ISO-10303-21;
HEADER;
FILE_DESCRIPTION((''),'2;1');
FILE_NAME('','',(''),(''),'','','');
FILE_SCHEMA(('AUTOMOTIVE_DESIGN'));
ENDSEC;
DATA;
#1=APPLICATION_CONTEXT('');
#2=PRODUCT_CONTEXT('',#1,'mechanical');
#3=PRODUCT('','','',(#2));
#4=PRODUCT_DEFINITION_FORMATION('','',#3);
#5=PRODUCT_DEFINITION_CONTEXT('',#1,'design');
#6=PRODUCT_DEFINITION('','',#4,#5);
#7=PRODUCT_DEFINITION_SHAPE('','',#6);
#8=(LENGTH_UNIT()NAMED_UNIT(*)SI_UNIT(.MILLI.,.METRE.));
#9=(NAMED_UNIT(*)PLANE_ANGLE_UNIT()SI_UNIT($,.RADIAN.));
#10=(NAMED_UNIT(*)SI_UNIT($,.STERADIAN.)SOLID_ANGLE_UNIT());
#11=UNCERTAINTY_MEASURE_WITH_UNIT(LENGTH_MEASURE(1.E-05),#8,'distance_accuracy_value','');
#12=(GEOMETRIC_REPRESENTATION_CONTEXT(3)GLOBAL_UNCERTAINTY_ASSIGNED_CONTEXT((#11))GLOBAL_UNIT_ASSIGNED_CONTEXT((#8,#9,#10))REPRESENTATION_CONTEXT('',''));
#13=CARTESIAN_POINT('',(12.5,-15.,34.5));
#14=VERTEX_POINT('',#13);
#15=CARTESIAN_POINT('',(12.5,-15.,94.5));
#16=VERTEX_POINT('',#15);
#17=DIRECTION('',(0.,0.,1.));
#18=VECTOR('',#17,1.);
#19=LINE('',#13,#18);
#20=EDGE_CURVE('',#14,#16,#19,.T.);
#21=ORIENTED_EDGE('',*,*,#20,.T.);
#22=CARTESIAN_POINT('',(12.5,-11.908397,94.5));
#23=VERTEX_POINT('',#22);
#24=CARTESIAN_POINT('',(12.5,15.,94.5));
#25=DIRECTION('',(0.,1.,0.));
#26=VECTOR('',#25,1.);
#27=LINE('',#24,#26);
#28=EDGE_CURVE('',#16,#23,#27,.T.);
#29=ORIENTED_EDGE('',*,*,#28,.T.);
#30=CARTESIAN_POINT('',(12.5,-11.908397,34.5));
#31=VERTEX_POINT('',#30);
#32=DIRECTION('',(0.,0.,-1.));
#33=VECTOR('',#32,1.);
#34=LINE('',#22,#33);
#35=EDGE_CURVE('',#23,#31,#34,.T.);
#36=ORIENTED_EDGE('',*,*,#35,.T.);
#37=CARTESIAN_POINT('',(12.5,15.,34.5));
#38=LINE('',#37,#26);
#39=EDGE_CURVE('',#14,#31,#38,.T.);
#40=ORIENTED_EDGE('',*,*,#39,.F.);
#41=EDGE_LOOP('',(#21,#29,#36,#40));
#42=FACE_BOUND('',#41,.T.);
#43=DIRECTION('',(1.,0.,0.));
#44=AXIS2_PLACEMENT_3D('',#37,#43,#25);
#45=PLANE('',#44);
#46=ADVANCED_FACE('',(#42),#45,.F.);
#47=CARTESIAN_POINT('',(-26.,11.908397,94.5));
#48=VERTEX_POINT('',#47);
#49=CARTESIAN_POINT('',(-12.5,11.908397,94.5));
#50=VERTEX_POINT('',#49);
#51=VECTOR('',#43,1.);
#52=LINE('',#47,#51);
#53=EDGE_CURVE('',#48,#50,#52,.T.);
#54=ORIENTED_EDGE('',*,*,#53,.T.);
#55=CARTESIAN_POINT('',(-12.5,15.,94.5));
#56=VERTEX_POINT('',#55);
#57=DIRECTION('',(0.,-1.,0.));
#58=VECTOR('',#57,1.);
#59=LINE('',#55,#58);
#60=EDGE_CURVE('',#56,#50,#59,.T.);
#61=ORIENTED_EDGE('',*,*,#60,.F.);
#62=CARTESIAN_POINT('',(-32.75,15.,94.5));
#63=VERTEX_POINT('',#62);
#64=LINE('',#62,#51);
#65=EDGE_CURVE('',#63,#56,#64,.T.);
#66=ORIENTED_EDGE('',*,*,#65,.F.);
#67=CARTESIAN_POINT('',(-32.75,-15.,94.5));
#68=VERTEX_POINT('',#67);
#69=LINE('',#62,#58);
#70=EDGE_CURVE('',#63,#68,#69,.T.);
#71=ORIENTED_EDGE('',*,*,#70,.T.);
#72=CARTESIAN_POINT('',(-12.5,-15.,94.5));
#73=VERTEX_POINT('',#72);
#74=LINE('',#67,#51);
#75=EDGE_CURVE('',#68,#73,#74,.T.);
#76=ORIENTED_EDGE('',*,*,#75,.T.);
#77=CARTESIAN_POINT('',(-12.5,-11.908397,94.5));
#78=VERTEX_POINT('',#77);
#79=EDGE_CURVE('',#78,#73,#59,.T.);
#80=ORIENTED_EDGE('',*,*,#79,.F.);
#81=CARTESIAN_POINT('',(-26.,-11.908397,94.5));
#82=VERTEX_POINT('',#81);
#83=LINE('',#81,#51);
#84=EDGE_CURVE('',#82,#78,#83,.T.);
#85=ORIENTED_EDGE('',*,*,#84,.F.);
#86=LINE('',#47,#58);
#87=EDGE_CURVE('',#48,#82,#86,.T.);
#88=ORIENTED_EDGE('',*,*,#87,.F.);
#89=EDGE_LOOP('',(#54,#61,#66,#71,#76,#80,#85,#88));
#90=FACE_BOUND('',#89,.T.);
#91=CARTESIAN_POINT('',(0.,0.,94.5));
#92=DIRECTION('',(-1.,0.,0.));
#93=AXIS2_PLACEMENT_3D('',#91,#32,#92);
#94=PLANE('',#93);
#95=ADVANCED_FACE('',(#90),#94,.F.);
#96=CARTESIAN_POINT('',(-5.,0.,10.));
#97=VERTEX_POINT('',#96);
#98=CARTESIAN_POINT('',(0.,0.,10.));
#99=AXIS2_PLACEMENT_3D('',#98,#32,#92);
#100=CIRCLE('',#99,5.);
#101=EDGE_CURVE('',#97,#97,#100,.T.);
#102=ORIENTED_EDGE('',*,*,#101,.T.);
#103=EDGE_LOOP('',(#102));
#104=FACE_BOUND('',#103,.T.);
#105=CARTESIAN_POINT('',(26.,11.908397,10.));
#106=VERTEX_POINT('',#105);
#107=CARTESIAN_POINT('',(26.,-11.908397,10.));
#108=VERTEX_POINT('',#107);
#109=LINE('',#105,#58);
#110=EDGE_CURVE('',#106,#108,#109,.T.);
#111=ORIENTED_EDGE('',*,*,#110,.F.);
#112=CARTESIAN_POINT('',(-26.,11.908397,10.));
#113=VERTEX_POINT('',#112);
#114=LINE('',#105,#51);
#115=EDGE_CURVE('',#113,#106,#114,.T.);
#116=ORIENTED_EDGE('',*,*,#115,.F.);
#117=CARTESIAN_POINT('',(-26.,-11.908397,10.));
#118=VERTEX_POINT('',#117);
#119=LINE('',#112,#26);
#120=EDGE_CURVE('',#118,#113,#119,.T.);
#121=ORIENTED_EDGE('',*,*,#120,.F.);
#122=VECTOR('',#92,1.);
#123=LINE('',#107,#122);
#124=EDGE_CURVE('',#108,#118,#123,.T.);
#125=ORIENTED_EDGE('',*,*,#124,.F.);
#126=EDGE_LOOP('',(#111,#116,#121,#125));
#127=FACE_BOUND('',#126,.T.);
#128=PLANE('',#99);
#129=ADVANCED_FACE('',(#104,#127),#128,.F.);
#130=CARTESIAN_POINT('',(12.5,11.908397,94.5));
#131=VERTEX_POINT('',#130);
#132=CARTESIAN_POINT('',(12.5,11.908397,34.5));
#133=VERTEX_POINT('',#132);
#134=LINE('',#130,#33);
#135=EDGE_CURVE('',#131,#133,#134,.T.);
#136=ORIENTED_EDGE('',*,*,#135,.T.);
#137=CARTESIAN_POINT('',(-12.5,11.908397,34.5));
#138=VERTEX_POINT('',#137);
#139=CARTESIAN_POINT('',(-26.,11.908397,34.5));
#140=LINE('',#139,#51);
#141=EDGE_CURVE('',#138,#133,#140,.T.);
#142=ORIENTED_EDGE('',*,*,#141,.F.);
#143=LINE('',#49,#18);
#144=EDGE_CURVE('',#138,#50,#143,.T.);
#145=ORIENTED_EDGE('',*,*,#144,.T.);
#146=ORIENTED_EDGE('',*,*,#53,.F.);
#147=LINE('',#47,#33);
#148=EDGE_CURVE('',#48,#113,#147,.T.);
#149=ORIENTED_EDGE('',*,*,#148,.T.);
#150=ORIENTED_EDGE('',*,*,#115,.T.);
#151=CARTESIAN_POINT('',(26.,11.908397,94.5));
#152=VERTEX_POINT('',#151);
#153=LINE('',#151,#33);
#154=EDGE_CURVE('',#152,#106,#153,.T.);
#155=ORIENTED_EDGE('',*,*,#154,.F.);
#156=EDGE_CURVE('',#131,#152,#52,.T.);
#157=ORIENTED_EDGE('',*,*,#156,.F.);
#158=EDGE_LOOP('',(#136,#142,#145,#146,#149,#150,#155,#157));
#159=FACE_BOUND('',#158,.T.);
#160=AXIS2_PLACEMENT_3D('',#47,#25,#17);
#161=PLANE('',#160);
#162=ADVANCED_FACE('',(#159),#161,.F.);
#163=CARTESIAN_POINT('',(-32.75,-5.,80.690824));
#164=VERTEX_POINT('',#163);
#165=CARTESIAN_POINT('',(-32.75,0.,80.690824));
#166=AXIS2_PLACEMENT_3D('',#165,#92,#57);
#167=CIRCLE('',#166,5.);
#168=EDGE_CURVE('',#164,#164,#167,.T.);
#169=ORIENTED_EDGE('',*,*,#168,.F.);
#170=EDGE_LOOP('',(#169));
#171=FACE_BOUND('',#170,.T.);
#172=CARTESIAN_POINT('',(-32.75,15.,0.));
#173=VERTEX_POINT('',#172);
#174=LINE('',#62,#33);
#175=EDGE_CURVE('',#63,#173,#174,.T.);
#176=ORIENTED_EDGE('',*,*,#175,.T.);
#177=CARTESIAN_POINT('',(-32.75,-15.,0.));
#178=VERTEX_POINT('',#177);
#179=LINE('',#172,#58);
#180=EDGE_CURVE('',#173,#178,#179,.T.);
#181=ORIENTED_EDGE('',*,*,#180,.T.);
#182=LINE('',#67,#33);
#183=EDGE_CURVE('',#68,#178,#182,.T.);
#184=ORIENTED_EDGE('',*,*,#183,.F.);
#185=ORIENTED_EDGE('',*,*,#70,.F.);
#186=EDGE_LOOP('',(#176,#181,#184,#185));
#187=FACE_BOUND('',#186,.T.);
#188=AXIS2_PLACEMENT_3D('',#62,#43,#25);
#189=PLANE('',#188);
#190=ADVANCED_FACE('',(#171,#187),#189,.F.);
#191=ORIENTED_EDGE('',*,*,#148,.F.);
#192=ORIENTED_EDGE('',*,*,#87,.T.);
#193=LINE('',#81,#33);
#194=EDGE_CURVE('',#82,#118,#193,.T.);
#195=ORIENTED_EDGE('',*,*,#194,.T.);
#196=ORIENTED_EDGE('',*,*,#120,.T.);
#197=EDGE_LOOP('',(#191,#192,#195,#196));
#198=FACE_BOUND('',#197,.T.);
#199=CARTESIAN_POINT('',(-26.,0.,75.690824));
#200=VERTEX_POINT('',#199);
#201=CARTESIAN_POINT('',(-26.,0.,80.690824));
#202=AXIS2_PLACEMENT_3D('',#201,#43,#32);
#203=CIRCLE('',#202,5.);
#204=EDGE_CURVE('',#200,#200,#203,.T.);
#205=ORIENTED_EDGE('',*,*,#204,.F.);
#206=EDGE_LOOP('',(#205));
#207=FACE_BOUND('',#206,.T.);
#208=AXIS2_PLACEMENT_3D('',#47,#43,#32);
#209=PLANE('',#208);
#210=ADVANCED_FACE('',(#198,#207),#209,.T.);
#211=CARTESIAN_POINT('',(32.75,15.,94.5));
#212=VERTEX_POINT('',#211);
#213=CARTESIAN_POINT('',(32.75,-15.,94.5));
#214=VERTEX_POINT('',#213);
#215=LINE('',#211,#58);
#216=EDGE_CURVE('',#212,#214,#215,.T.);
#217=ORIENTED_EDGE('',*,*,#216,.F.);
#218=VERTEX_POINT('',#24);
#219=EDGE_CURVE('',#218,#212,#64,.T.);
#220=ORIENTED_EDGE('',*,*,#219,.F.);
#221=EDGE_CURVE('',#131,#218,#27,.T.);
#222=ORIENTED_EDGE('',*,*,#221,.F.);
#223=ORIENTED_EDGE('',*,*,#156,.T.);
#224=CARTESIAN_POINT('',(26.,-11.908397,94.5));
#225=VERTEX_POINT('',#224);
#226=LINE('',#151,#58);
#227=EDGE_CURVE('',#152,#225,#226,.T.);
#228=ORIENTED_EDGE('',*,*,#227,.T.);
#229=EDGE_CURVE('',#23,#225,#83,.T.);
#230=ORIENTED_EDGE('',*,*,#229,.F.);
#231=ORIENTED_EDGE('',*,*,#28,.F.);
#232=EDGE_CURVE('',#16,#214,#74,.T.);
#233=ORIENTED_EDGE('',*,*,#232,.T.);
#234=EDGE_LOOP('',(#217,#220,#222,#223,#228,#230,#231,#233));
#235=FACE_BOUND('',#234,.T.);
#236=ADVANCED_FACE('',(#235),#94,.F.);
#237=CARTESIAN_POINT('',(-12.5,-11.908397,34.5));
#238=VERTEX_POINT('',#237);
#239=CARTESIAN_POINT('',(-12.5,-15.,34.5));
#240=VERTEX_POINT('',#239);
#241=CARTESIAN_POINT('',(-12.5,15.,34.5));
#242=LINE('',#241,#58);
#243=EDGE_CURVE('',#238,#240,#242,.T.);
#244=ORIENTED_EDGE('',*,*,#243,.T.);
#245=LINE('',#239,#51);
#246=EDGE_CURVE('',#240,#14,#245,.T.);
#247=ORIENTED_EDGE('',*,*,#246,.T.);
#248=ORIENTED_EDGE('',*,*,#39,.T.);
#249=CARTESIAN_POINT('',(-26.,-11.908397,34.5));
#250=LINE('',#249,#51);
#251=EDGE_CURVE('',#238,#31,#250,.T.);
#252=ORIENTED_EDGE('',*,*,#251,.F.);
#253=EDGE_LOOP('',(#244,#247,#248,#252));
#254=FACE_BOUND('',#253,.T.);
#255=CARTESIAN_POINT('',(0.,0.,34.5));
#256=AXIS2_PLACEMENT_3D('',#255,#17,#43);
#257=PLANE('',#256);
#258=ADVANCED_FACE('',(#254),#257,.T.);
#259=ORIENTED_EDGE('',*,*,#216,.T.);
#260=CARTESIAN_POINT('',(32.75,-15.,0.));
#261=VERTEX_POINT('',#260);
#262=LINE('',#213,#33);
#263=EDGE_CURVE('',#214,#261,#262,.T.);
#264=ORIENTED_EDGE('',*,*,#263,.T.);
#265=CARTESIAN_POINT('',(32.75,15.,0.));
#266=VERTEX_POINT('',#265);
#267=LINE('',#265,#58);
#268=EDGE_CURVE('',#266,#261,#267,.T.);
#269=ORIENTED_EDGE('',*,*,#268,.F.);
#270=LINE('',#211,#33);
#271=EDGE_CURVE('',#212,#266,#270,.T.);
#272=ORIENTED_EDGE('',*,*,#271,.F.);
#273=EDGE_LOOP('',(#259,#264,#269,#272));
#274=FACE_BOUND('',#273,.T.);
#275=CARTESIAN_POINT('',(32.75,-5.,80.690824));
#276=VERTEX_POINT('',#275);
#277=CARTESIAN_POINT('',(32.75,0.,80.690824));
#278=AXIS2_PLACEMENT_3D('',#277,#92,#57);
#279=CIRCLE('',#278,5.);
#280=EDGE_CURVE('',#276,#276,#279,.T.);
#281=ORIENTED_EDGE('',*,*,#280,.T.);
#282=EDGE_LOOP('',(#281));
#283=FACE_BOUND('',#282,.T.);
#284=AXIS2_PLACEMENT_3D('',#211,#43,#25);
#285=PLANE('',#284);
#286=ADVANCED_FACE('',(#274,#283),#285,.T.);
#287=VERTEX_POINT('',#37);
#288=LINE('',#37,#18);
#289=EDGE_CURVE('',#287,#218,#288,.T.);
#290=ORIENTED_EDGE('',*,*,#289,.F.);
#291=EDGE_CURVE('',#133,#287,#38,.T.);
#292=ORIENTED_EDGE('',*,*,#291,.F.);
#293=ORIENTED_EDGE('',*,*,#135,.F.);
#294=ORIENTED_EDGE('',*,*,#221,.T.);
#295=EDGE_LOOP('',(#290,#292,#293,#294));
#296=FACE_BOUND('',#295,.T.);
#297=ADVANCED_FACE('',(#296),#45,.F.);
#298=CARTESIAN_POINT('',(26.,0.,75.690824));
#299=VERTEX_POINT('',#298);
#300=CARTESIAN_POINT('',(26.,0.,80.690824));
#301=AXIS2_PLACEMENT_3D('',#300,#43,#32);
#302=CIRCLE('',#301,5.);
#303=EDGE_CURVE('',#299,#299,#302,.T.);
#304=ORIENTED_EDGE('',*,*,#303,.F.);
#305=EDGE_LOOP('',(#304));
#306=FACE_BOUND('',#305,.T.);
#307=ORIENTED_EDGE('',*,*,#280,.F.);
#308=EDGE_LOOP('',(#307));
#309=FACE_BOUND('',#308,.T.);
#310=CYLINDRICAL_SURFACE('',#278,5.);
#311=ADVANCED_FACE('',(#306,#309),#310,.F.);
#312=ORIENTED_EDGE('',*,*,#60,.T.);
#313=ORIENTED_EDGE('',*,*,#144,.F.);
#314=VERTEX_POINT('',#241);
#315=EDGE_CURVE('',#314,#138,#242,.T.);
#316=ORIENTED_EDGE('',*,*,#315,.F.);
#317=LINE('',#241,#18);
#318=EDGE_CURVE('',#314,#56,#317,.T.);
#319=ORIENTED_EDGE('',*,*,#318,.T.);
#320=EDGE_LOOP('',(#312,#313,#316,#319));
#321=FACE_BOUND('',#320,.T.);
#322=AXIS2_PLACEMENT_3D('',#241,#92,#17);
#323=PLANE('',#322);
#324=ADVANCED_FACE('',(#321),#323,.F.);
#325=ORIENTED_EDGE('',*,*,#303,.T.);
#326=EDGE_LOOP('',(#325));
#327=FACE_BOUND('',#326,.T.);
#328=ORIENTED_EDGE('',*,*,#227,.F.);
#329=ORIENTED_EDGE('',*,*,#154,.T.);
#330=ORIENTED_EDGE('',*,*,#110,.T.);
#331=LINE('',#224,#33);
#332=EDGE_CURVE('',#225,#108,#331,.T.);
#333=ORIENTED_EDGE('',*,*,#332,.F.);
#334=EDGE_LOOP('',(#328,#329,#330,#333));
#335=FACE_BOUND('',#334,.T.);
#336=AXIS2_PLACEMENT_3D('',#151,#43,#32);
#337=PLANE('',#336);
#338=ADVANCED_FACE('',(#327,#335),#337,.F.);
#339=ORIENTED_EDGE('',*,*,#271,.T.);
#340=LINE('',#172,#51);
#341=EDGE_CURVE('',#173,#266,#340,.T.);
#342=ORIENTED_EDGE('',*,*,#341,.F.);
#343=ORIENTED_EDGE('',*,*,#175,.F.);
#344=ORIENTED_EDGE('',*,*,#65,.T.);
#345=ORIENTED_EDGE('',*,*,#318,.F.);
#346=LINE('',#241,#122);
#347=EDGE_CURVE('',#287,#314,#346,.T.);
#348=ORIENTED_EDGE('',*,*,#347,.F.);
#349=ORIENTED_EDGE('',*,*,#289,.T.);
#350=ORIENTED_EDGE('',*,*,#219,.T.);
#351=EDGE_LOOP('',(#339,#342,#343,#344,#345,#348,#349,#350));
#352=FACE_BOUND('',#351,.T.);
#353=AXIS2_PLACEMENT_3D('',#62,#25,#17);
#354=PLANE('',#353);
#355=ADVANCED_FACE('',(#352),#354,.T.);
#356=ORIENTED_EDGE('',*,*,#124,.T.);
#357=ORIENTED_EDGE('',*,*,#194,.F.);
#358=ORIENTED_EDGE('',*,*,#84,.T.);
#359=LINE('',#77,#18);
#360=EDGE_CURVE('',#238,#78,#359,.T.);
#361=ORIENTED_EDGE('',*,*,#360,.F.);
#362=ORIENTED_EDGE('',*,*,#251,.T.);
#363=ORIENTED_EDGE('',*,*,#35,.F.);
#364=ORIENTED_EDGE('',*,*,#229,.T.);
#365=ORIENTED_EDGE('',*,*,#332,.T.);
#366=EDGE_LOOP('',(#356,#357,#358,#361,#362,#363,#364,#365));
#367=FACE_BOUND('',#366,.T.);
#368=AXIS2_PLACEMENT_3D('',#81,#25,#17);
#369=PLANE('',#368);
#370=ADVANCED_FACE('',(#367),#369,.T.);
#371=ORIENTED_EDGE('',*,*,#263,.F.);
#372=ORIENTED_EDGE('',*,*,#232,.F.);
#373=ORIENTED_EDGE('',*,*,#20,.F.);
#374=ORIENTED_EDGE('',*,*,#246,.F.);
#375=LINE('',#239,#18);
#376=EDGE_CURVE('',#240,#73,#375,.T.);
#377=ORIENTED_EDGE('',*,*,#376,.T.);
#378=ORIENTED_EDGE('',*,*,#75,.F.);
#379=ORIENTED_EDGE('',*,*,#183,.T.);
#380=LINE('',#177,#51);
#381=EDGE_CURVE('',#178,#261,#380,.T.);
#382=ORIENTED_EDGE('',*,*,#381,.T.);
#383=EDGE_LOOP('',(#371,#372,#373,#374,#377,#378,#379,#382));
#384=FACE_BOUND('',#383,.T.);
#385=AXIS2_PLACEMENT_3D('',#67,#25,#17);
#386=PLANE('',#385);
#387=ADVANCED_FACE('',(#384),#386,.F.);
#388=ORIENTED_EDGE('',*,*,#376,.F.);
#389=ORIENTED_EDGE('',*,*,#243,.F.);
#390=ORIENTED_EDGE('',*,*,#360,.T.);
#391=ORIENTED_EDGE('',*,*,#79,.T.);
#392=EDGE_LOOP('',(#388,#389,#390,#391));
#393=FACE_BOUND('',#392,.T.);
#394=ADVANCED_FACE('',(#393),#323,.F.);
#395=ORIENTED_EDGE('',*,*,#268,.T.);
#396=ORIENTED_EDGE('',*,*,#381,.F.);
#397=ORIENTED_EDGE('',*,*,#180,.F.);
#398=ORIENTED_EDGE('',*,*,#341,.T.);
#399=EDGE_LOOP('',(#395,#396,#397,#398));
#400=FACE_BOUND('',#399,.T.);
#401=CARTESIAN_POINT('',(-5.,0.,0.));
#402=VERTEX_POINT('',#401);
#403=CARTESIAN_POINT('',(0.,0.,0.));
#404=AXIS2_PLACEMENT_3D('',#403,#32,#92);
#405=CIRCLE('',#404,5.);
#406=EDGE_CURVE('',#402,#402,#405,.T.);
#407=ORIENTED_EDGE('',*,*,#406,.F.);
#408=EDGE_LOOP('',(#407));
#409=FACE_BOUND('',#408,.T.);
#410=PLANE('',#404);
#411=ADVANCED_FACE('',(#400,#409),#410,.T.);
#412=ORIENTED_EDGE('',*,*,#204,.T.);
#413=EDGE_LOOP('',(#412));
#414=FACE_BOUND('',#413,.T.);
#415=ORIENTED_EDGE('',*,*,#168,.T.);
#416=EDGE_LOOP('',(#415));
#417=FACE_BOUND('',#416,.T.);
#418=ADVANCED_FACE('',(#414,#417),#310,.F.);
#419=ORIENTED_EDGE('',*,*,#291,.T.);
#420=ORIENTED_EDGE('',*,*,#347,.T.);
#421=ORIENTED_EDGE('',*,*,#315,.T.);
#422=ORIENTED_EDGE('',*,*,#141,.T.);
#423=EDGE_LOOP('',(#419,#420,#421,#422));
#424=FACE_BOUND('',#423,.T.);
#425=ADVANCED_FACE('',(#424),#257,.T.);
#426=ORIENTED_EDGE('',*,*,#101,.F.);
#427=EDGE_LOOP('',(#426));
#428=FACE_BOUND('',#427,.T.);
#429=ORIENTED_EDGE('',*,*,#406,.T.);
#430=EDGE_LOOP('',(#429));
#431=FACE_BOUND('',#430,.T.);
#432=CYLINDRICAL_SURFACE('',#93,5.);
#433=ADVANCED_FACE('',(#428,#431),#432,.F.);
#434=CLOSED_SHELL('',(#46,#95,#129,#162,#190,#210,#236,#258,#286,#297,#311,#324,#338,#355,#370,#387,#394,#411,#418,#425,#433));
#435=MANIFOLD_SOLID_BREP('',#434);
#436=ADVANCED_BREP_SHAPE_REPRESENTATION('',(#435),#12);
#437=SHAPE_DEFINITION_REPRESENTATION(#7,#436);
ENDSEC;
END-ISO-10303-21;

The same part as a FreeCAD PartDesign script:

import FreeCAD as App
import Part
import Sketcher


def add_polygon(sketch, points):
    """Adds a closed chain of lines whose ends are joined by coincident constraints."""
    first, n = sketch.GeometryCount, len(points)
    for a, b in zip(points, points[1:] + points[:1]):
        sketch.addGeometry(Part.LineSegment(App.Vector(*a, 0), App.Vector(*b, 0)), False)
    for i in range(n):
        sketch.addConstraint(Sketcher.Constraint("Coincident", first + i, 2, first + (i + 1) % n, 1))

doc = App.newDocument("Part")
body = doc.addObject("PartDesign::Body", "Body")

# Sketch on XY plane
sketch1 = doc.addObject("Sketcher::SketchObject", "Sketch")
body.addObject(sketch1)
sketch1.AttachmentSupport = (doc.XY_Plane, [""])
sketch1.MapMode = "FlatFace"
add_polygon(sketch1, [(-33, 15), (-33, -15), (33, -15), (33, 15)])  # lines 0-3
add_polygon(sketch1, [(26, -12), (-26, -12), (-26, 12), (26, 12)])  # lines 4-7
sketch1.addConstraint(Sketcher.Constraint("Vertical", 0))
sketch1.addConstraint(Sketcher.Constraint("Horizontal", 1))
sketch1.addConstraint(Sketcher.Constraint("Vertical", 2))
sketch1.addConstraint(Sketcher.Constraint("Horizontal", 3))
sketch1.addConstraint(Sketcher.Constraint("Horizontal", 4))
sketch1.addConstraint(Sketcher.Constraint("Vertical", 5))
sketch1.addConstraint(Sketcher.Constraint("Horizontal", 6))
sketch1.addConstraint(Sketcher.Constraint("Vertical", 7))
sketch1.addConstraint(Sketcher.Constraint("Symmetric", 0, 2, 2, 2, -1, 1))
sketch1.addConstraint(Sketcher.Constraint("Symmetric", 4, 2, 6, 2, -1, 1))
sketch1.addConstraint(Sketcher.Constraint("DistanceX", 4, 2, 4, 1, 52.0))
sketch1.addConstraint(Sketcher.Constraint("DistanceY", 0, 2, 0, 1, 30.0))
sketch1.addConstraint(Sketcher.Constraint("DistanceX", 1, 1, 1, 2, 65.5))
sketch1.addConstraint(Sketcher.Constraint("DistanceY", 5, 1, 5, 2, 23.816794))
pad1 = doc.addObject("PartDesign::Pad", "Pad")
body.addObject(pad1)
pad1.Profile = sketch1
pad1.Length = 94.5

# Sketch on XY plane
sketch2 = doc.addObject("Sketcher::SketchObject", "Sketch001")
body.addObject(sketch2)
sketch2.AttachmentSupport = (doc.XY_Plane, [""])
sketch2.MapMode = "FlatFace"
add_polygon(sketch2, [(26, 12), (26, -12), (-26, -12), (-26, 12)])  # lines 0-3
sketch2.addConstraint(Sketcher.Constraint("Vertical", 0))
sketch2.addConstraint(Sketcher.Constraint("Horizontal", 1))
sketch2.addConstraint(Sketcher.Constraint("Vertical", 2))
sketch2.addConstraint(Sketcher.Constraint("Horizontal", 3))
sketch2.addConstraint(Sketcher.Constraint("Symmetric", 0, 2, 2, 2, -1, 1))
sketch2.addConstraint(Sketcher.Constraint("DistanceX", 1, 2, 1, 1, 52.0))
sketch2.addConstraint(Sketcher.Constraint("DistanceY", 0, 2, 0, 1, 23.816794))
pad2 = doc.addObject("PartDesign::Pad", "Pad001")
body.addObject(pad2)
pad2.Profile = sketch2
pad2.Length = 10

# Sketch on XY plane
sketch3 = doc.addObject("Sketcher::SketchObject", "Sketch002")
body.addObject(sketch3)
sketch3.AttachmentSupport = (doc.XY_Plane, [""])
sketch3.MapMode = "FlatFace"
sketch3.AttachmentOffset = App.Placement(App.Vector(0, 0, 94.5), App.Rotation())
add_polygon(sketch3, [(-12, 15), (-12, -15), (12, -15), (12, 15)])  # lines 0-3
sketch3.addConstraint(Sketcher.Constraint("Vertical", 0))
sketch3.addConstraint(Sketcher.Constraint("Horizontal", 1))
sketch3.addConstraint(Sketcher.Constraint("Vertical", 2))
sketch3.addConstraint(Sketcher.Constraint("Horizontal", 3))
sketch3.addConstraint(Sketcher.Constraint("Symmetric", 0, 2, 2, 2, -1, 1))
sketch3.addConstraint(Sketcher.Constraint("DistanceX", 1, 1, 1, 2, 25.0))
sketch3.addConstraint(Sketcher.Constraint("DistanceY", 0, 2, 0, 1, 30.0))
pocket1 = doc.addObject("PartDesign::Pocket", "Pocket")
body.addObject(pocket1)
pocket1.Profile = sketch3
pocket1.Length = 60

# Sketch on YZ plane
sketch4 = doc.addObject("Sketcher::SketchObject", "Sketch003")
body.addObject(sketch4)
sketch4.AttachmentSupport = (doc.YZ_Plane, [""])
sketch4.MapMode = "FlatFace"
sketch4.AttachmentOffset = App.Placement(App.Vector(0, 0, -32.75), App.Rotation())
sketch4.addGeometry(Part.Circle(App.Vector(0, 81, 0), App.Vector(0, 0, 1), 5), False)
sketch4.addConstraint(Sketcher.Constraint("PointOnObject", 0, 3, -2))
sketch4.addConstraint(Sketcher.Constraint("Diameter", 0, 10.0))
sketch4.addConstraint(Sketcher.Constraint("DistanceY", -1, 1, 0, 3, 80.690824))
pocket2 = doc.addObject("PartDesign::Pocket", "Pocket001")
body.addObject(pocket2)
pocket2.Profile = sketch4
pocket2.Type = "ThroughAll"
pocket2.Reversed = True

# Sketch on XY plane
sketch5 = doc.addObject("Sketcher::SketchObject", "Sketch004")
body.addObject(sketch5)
sketch5.AttachmentSupport = (doc.XY_Plane, [""])
sketch5.MapMode = "FlatFace"
sketch5.addGeometry(Part.Circle(App.Vector(0, 0, 0), App.Vector(0, 0, 1), 5), False)
sketch5.addConstraint(Sketcher.Constraint("Coincident", 0, 3, -1, 1))
sketch5.addConstraint(Sketcher.Constraint("Diameter", 0, 10.0))
pocket3 = doc.addObject("PartDesign::Pocket", "Pocket002")
body.addObject(pocket3)
pocket3.Profile = sketch5
pocket3.Type = "ThroughAll"
pocket3.Reversed = True

doc.recompute()
